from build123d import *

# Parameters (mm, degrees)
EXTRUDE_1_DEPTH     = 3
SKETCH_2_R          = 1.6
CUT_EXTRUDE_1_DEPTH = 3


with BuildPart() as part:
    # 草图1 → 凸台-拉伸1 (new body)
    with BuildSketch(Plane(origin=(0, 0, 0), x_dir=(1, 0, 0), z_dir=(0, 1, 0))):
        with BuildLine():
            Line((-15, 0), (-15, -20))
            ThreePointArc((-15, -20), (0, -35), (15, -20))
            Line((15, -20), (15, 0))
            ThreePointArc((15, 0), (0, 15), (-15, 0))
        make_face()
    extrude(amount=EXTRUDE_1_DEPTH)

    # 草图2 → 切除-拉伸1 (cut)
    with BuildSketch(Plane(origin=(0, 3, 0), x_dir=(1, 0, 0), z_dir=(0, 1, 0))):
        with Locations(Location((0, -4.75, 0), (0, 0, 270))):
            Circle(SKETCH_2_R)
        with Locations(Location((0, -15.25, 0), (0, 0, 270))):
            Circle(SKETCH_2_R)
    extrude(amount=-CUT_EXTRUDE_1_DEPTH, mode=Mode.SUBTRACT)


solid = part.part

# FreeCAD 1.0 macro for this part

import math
import FreeCAD as App
import Part
import Sketcher

V = App.Vector

doc = App.newDocument("Part")
body = doc.addObject("PartDesign::Body", "Body")

sketch1 = body.newObject("Sketcher::SketchObject", "Sketch")
sketch1.AttachmentSupport = (doc.getObject("XZ_Plane"), [""])
sketch1.MapMode = "FlatFace"
sketch1.addGeometry([
    Part.LineSegment(V(-15, 0, 0), V(-15, 20, 0)),
    Part.ArcOfCircle(Part.Circle(V(0, 20, 0), V(0, 0, 1), 15), math.radians(0), math.radians(180)),
    Part.LineSegment(V(15, 20, 0), V(15, 0, 0)),
    Part.ArcOfCircle(Part.Circle(V(0, 0, 0), V(0, 0, 1), 15), math.radians(180), math.radians(360)),
], False)
sketch1.addConstraint([
    Sketcher.Constraint("Tangent", 0, 2, 1, 2),
    Sketcher.Constraint("Tangent", 1, 1, 2, 1),
    Sketcher.Constraint("Tangent", 2, 2, 3, 2),
    Sketcher.Constraint("Tangent", 3, 1, 0, 1),
    Sketcher.Constraint("Vertical", 0),
    Sketcher.Constraint("Vertical", 2),
    Sketcher.Constraint("Coincident", 3, 3, -1, 1),
    Sketcher.Constraint("Radius", 1, 15.0),
    Sketcher.Constraint("DistanceY", 0, 1, 0, 2, 20.0),
])
pad1 = body.newObject("PartDesign::Pad", "Pad")
pad1.Profile = sketch1
pad1.Length = 3
pad1.Reversed = True

sketch2 = body.newObject("Sketcher::SketchObject", "Sketch001")
sketch2.AttachmentSupport = (doc.getObject("XZ_Plane"), [""])
sketch2.MapMode = "FlatFace"
sketch2.AttachmentOffset = App.Placement(V(0, 0, -3), App.Rotation())
sketch2.addGeometry([
    Part.Circle(V(0, 4.75, 0), V(0, 0, 1), 1.6),
    Part.Circle(V(0, 15.25, 0), V(0, 0, 1), 1.6),
], False)
sketch2.addConstraint([
    Sketcher.Constraint("Equal", 0, 1),
    Sketcher.Constraint("PointOnObject", 0, 3, -2),
    Sketcher.Constraint("PointOnObject", 1, 3, -2),
    Sketcher.Constraint("Diameter", 0, 3.2),
    Sketcher.Constraint("DistanceY", 0, 3, 1, 3, 10.5),
    Sketcher.Constraint("DistanceY", -1, 1, 0, 3, 4.75),
])
pocket1 = body.newObject("PartDesign::Pocket", "Pocket")
pocket1.Profile = sketch2
pocket1.Length = 3
pocket1.Reversed = True

doc.recompute()
